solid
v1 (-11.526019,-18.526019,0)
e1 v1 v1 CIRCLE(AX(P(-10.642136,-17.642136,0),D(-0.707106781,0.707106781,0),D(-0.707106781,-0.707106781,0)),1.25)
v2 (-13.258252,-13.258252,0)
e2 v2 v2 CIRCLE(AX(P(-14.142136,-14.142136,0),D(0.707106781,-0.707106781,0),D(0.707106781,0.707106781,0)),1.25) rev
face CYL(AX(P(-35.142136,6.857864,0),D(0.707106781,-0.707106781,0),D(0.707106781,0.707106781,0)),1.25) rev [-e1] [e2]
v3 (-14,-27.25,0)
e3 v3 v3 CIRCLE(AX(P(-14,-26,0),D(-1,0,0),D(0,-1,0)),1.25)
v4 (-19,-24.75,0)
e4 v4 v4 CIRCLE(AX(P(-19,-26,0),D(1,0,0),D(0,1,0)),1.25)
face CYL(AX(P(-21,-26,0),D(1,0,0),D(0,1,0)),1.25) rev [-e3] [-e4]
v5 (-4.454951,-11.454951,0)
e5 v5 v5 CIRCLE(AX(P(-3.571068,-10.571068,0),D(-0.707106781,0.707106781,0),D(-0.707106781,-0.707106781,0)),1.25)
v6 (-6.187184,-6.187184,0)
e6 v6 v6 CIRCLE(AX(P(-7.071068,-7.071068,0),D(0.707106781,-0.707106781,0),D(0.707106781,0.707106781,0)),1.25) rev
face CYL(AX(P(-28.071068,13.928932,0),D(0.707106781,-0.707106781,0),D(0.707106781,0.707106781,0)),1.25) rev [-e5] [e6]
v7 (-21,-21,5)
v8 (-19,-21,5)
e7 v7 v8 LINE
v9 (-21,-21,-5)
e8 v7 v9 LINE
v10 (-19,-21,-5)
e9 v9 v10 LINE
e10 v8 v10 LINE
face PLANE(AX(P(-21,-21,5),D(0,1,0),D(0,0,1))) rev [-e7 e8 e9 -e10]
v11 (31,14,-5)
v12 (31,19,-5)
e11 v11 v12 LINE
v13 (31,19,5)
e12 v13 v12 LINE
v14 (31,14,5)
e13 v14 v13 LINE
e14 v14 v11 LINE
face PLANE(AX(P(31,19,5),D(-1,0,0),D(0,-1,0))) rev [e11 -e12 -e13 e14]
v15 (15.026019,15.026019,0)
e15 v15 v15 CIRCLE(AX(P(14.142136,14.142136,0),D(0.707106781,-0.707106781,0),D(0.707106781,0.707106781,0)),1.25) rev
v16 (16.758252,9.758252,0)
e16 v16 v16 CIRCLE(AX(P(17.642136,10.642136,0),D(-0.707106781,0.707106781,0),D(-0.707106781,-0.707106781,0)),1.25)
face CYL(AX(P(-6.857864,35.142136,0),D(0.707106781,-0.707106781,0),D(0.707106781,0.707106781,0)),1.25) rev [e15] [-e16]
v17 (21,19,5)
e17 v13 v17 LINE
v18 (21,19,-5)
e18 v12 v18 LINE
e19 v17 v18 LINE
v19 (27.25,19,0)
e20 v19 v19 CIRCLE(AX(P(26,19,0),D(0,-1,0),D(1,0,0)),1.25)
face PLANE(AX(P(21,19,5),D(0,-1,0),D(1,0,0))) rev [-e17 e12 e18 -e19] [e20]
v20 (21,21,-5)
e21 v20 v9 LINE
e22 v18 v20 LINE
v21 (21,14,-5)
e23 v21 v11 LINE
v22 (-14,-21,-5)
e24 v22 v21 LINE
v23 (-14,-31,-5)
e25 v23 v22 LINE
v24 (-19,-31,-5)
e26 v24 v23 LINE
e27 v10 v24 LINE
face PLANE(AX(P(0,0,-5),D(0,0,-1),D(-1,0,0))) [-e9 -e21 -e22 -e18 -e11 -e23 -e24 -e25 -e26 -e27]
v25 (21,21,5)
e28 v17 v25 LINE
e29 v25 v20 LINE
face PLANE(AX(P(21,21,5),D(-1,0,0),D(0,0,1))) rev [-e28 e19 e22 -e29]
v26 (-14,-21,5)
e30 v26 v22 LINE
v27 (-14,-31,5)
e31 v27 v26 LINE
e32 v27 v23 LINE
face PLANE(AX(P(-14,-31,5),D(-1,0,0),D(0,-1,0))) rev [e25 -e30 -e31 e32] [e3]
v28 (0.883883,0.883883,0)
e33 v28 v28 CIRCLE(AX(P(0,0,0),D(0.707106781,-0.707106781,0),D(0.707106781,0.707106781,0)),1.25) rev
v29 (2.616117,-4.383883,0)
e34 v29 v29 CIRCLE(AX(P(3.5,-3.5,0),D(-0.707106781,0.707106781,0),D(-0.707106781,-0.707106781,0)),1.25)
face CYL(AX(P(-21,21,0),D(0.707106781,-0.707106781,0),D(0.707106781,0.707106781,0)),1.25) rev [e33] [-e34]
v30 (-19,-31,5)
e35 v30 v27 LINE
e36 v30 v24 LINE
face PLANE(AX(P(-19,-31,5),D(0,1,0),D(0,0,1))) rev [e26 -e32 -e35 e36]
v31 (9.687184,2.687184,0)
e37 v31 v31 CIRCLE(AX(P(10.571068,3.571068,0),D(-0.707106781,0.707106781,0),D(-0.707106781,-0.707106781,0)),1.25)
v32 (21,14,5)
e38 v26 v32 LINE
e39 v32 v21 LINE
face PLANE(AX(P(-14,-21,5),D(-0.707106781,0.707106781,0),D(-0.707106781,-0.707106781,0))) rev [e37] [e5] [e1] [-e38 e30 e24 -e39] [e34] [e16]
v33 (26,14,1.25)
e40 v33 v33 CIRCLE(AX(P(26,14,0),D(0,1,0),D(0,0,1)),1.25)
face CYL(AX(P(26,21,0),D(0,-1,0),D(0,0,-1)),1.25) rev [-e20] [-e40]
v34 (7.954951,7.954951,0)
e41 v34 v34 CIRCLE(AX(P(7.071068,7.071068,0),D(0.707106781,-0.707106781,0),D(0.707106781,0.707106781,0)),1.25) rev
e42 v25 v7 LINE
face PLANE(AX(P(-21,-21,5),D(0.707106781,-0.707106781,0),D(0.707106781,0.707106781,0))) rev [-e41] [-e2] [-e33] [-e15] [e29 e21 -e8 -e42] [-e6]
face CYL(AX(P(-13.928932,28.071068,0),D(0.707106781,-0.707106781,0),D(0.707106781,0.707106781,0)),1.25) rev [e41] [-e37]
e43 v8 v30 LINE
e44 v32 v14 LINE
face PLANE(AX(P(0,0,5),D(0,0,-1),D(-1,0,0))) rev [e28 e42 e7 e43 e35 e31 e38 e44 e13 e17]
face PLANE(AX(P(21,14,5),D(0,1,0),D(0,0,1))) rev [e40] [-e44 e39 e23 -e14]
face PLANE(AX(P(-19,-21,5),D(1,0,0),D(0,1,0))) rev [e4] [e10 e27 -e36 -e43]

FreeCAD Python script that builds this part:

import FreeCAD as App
import Part
import Sketcher

V = App.Vector
Q = App.Units.Quantity

doc = App.newDocument("Part")
params = doc.addObject("Spreadsheet::Sheet", "Params")
for row, (alias, value) in enumerate([
    ("sketch1_width", "2 mm"),
    ("sketch1_width2", "5 mm"),
    ("sketch1_width3", "10 mm"),
    ("pad1_length", "10 mm"),
    ("sketch2_diameter", "2.5 mm"),
    ("sketch3_diameter", "2.5 mm"),
    ("sketch4_diameter", "2.5 mm"),
    ("linearpattern_pitch", "10 mm"),
], start=1):
    params.set(f"A{row}", alias)
    params.set(f"B{row}", "=" + value)
    params.setAlias(f"B{row}", alias)

body = doc.addObject("PartDesign::Body", "Body")

sketch1 = body.newObject("Sketcher::SketchObject", "Sketch")
sketch1.AttachmentSupport = (doc.getObject("XY_Plane"), [""])
sketch1.MapMode = "FlatFace"
sketch1.addGeometry(Part.LineSegment(V(21, 21, 0), V(-21, -21, 0)), False)
sketch1.addGeometry(Part.LineSegment(V(-21, -21, 0), V(-19, -21, 0)), False)
sketch1.addGeometry(Part.LineSegment(V(-19, -21, 0), V(-19, -31, 0)), False)
sketch1.addGeometry(Part.LineSegment(V(-19, -31, 0), V(-14, -31, 0)), False)
sketch1.addGeometry(Part.LineSegment(V(-14, -31, 0), V(-14, -21, 0)), False)
sketch1.addGeometry(Part.LineSegment(V(-14, -21, 0), V(21, 14, 0)), False)
sketch1.addGeometry(Part.LineSegment(V(21, 14, 0), V(31, 14, 0)), False)
sketch1.addGeometry(Part.LineSegment(V(31, 14, 0), V(31, 19, 0)), False)
sketch1.addGeometry(Part.LineSegment(V(31, 19, 0), V(21, 19, 0)), False)
sketch1.addGeometry(Part.LineSegment(V(21, 19, 0), V(21, 21, 0)), False)
sketch1.addConstraint(Sketcher.Constraint("Coincident", 0, 2, 1, 1))
sketch1.addConstraint(Sketcher.Constraint("Coincident", 1, 2, 2, 1))
sketch1.addConstraint(Sketcher.Constraint("Coincident", 2, 2, 3, 1))
sketch1.addConstraint(Sketcher.Constraint("Coincident", 3, 2, 4, 1))
sketch1.addConstraint(Sketcher.Constraint("Coincident", 4, 2, 5, 1))
sketch1.addConstraint(Sketcher.Constraint("Coincident", 5, 2, 6, 1))
sketch1.addConstraint(Sketcher.Constraint("Coincident", 6, 2, 7, 1))
sketch1.addConstraint(Sketcher.Constraint("Coincident", 7, 2, 8, 1))
sketch1.addConstraint(Sketcher.Constraint("Coincident", 8, 2, 9, 1))
sketch1.addConstraint(Sketcher.Constraint("Coincident", 9, 2, 0, 1))
sketch1.addConstraint(Sketcher.Constraint("Horizontal", 1))
sketch1.addConstraint(Sketcher.Constraint("Vertical", 2))
sketch1.addConstraint(Sketcher.Constraint("Horizontal", 3))
sketch1.addConstraint(Sketcher.Constraint("Vertical", 4))
sketch1.addConstraint(Sketcher.Constraint("Horizontal", 6))
sketch1.addConstraint(Sketcher.Constraint("Vertical", 7))
sketch1.addConstraint(Sketcher.Constraint("Horizontal", 8))
sketch1.addConstraint(Sketcher.Constraint("Vertical", 9))
sketch1.addConstraint(Sketcher.Constraint("Symmetric", 0, 2, 9, 2, -1, 1))
sketch1.addConstraint(Sketcher.Constraint("Parallel", 0, 5))
sketch1.addConstraint(Sketcher.Constraint("Horizontal", 1, 2, 4, 2))
sketch1.addConstraint(Sketcher.Constraint("Vertical", 5, 2, 8, 2))
sketch1.addConstraint(Sketcher.Constraint("Equal", 8, 2))
sketch1.addConstraint(Sketcher.Constraint("Equal", 3, 7))
sketch1.addConstraint(Sketcher.Constraint("Equal", 1, 9))
sketch1.addConstraint(Sketcher.Constraint("DistanceX", 1, 1, 1, 2, Q("2 mm")))
sketch1.addConstraint(Sketcher.Constraint("DistanceX", 3, 1, 3, 2, Q("5 mm")))
sketch1.addConstraint(Sketcher.Constraint("DistanceX", 6, 1, 6, 2, Q("10 mm")))
sketch1.addConstraint(Sketcher.Constraint("DistanceX", 0, 2, -1, 1, Q("21 mm")))
sketch1.setExpression("Constraints[25]", "Params.sketch1_width")
sketch1.setExpression("Constraints[26]", "Params.sketch1_width2")
sketch1.setExpression("Constraints[27]", "Params.sketch1_width3")
pad1 = body.newObject("PartDesign::Pad", "Pad")
pad1.Profile = sketch1
pad1.setExpression("Length", "Params.pad1_length")
pad1.Midplane = True

sketch2 = body.newObject("Sketcher::SketchObject", "Sketch001")
sketch2.AttachmentSupport = (doc.getObject("YZ_Plane"), [""])
sketch2.MapMode = "FlatFace"
sketch2.AttachmentOffset = App.Placement(V(0, 0, 21), App.Rotation())
sketch2.addGeometry(Part.Circle(V(-26, 0, 0), V(0, 0, 1), 1.2), False)
sketch2.addConstraint(Sketcher.Constraint("PointOnObject", 0, 3, -1))
sketch2.addConstraint(Sketcher.Constraint("Diameter", 0, Q("2.5 mm")))
sketch2.addConstraint(Sketcher.Constraint("DistanceX", 0, 3, -1, 1, Q("26 mm")))
sketch2.setExpression("Constraints[1]", "Params.sketch2_diameter")
pocket1 = body.newObject("PartDesign::Pocket", "Pocket")
pocket1.Profile = sketch2
pocket1.Type = "ThroughAll"

sketch3 = body.newObject("Sketcher::SketchObject", "Sketch002")
sketch3.AttachmentSupport = (doc.getObject("XZ_Plane"), [""])
sketch3.MapMode = "FlatFace"
sketch3.AttachmentOffset = App.Placement(V(0, 0, 21), App.Rotation())
sketch3.addGeometry(Part.Circle(V(26, 0, 0), V(0, 0, 1), 1.2), False)
sketch3.addConstraint(Sketcher.Constraint("PointOnObject", 0, 3, -1))
sketch3.addConstraint(Sketcher.Constraint("Diameter", 0, Q("2.5 mm")))
sketch3.addConstraint(Sketcher.Constraint("DistanceX", -1, 1, 0, 3, Q("26 mm")))
sketch3.setExpression("Constraints[1]", "Params.sketch3_diameter")
pocket2 = body.newObject("PartDesign::Pocket", "Pocket001")
pocket2.Profile = sketch3
pocket2.Type = "ThroughAll"

sketch4 = body.newObject("Sketcher::SketchObject", "Sketch003")
sketch4.Placement = App.Placement(V(3.5, -3.5, 0), App.Rotation(V(0, 0, 1), V(0.707106781, 0.707106781, 0), V(-0.707106781, 0.707106781, 0), "ZXY"))
sketch4.addGeometry(Part.Circle(V(0, 20, 0), V(0, 0, 1), 1.2), False)
sketch4.addConstraint(Sketcher.Constraint("PointOnObject", 0, 3, -2))
sketch4.addConstraint(Sketcher.Constraint("Diameter", 0, Q("2.5 mm")))
sketch4.addConstraint(Sketcher.Constraint("DistanceY", -1, 1, 0, 3, Q("20 mm")))
sketch4.setExpression("Constraints[1]", "Params.sketch4_diameter")
pocket3 = body.newObject("PartDesign::Pocket", "Pocket002")
pocket3.Profile = sketch4
pocket3.Type = "ThroughAll"
pocket3.Reversed = True
doc.recompute()

datumline = body.newObject("PartDesign::Line", "DatumLine")
datumline.Placement = App.Placement(V(0, 0, 0), App.Rotation(V(0, 0, 1), V(-0.707106781, -0.707106781, 0)))
linearpattern = body.newObject("PartDesign::LinearPattern", "LinearPattern")
linearpattern.Originals = [pocket3]
linearpattern.Direction = (datumline, [""])
linearpattern.Mode = "offset"
linearpattern.setExpression("Offset", "Params.linearpattern_pitch")
linearpattern.Occurrences = 5
body.Tip = linearpattern

doc.recompute()
